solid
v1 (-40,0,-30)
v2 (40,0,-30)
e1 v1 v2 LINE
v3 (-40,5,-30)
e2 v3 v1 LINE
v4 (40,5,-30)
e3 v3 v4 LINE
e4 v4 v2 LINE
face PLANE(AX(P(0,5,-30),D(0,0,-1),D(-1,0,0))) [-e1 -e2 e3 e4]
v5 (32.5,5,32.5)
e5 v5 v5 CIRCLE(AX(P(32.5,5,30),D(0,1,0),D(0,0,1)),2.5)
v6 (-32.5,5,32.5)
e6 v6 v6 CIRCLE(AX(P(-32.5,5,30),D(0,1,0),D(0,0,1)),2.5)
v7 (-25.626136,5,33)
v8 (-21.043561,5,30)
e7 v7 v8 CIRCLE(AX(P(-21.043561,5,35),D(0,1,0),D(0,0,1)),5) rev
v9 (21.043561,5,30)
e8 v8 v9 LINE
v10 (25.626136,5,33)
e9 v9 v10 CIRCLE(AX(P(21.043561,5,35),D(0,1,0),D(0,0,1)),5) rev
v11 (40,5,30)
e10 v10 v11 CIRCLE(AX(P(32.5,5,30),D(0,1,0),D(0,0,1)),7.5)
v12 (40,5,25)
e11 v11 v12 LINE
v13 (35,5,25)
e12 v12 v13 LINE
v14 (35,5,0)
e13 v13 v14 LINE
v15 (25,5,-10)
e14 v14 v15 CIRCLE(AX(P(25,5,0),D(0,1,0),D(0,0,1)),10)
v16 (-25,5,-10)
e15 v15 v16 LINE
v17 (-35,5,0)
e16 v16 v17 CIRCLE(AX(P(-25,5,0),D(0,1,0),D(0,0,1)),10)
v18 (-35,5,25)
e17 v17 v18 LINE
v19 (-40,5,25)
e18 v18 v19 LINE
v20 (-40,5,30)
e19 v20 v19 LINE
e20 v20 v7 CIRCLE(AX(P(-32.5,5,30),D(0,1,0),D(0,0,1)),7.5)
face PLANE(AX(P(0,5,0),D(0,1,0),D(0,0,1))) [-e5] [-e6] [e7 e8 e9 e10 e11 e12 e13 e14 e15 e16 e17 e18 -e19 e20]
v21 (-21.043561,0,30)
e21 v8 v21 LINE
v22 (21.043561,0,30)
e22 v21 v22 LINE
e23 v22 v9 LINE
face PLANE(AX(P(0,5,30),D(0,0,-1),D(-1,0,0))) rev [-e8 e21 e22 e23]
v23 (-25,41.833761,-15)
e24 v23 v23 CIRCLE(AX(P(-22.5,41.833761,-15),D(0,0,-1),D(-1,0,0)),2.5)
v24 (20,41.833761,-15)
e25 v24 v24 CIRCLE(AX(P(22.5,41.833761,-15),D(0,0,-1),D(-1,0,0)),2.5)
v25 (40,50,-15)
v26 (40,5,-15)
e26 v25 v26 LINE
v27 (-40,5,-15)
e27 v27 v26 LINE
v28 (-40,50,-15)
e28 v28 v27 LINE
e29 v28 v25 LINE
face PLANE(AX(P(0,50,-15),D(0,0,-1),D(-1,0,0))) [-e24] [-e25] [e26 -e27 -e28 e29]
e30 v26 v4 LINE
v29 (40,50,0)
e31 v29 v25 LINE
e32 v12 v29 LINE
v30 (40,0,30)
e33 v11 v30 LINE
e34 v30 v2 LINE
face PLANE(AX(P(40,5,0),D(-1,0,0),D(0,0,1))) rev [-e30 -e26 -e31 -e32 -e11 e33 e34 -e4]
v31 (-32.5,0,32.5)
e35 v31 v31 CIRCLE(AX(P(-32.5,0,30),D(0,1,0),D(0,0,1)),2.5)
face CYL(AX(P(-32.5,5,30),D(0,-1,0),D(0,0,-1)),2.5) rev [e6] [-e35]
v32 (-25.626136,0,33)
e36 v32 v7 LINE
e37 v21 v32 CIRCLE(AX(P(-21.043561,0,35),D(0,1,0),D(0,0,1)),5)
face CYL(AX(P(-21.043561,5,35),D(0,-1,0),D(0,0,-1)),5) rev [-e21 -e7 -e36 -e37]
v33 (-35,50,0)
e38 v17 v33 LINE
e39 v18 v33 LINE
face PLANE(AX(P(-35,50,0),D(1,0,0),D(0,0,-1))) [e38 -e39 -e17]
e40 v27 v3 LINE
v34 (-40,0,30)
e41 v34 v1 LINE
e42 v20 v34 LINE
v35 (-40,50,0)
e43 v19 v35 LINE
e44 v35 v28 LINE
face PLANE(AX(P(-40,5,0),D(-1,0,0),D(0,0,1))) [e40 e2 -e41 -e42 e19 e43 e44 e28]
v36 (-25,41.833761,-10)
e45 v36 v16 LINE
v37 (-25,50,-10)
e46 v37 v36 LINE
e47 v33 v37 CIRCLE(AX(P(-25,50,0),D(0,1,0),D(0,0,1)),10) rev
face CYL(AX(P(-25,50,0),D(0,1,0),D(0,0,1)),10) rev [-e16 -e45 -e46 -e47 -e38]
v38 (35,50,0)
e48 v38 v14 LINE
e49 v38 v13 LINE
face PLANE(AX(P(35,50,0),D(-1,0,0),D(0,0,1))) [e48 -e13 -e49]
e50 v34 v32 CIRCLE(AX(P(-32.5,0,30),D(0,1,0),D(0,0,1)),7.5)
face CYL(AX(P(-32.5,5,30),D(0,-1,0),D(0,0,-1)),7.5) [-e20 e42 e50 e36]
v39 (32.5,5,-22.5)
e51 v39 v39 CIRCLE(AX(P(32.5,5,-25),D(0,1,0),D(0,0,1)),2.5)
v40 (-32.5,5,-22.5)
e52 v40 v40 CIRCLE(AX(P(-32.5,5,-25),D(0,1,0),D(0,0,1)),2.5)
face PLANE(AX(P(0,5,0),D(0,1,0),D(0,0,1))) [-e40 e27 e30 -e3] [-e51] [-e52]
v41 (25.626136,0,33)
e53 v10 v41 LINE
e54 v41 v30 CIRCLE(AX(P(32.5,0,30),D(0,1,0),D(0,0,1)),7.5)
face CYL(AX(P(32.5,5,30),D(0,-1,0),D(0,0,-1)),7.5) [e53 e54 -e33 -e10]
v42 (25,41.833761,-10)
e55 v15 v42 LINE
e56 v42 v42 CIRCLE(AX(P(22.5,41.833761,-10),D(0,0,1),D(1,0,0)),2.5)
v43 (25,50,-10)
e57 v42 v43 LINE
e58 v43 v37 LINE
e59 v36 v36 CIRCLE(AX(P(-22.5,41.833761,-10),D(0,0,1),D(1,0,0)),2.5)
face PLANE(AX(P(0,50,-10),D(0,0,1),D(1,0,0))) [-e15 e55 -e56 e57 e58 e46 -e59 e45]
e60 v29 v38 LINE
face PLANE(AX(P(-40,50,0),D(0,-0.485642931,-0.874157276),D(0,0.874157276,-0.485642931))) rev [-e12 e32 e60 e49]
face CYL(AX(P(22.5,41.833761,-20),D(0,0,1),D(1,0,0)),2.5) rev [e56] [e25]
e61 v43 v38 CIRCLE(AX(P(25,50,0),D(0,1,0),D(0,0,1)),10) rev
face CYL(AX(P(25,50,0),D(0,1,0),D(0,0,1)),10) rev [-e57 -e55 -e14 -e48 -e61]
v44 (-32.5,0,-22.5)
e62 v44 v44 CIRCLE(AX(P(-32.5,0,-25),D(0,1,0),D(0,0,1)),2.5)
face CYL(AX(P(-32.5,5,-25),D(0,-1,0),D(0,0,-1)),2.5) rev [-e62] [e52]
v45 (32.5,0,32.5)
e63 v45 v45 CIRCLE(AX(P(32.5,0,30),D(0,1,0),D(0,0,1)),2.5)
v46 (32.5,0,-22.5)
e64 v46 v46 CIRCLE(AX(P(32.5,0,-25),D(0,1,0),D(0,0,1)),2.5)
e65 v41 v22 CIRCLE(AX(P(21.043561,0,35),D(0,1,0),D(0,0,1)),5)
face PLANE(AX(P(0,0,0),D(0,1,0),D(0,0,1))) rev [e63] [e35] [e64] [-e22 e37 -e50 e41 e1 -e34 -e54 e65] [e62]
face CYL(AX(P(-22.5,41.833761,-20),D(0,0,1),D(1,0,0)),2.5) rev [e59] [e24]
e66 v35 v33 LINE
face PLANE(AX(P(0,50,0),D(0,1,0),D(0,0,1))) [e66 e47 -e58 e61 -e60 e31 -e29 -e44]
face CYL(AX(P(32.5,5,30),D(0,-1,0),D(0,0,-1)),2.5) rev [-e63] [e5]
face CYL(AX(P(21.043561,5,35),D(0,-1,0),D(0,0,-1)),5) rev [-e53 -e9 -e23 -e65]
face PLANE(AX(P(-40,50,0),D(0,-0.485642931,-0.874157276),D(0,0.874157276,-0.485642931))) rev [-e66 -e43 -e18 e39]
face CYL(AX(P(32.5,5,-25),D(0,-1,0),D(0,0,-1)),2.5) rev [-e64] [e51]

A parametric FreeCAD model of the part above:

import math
import FreeCAD as App
import Part
import Sketcher
Q = App.Units.Quantity


def edges_at(feature, points):
    """Names of the edges that pass closest to the given points."""
    edges = feature.Shape.Edges
    near = lambda p: min(range(len(edges)), key=lambda i: edges[i].distToShape(Part.Vertex(*p))[0])
    return sorted({f"Edge{near(p) + 1}" for p in points})

doc = App.newDocument("Part")
body = doc.addObject("PartDesign::Body", "Body")

# Sketch on XZ plane
sketch1 = body.newObject("Sketcher::SketchObject", "Sketch")
sketch1.AttachmentSupport = (doc.getObject("XZ_Plane"), [""])
sketch1.MapMode = "FlatFace"
sketch1.addGeometry(Part.ArcOfCircle(Part.Circle(App.Vector(-32.5, 30, 0), App.Vector(0, 0, 1), 7.5), math.radians(0), math.radians(180)), False)
sketch1.addGeometry(Part.LineSegment(App.Vector(-25, 30, 0), App.Vector(25, 30, 0)), False)
sketch1.addGeometry(Part.ArcOfCircle(Part.Circle(App.Vector(32.5, 30, 0), App.Vector(0, 0, 1), 7.5), math.radians(0), math.radians(180)), False)
sketch1.addGeometry(Part.LineSegment(App.Vector(40, 30, 0), App.Vector(40, 25, 0)), False)
sketch1.addGeometry(Part.LineSegment(App.Vector(40, 25, 0), App.Vector(35, 25, 0)), False)
sketch1.addGeometry(Part.LineSegment(App.Vector(35, 25, 0), App.Vector(35, -10, 0)), False)
sketch1.addGeometry(Part.LineSegment(App.Vector(35, -10, 0), App.Vector(-35, -10, 0)), False)
sketch1.addGeometry(Part.LineSegment(App.Vector(-35, -10, 0), App.Vector(-35, 25, 0)), False)
sketch1.addGeometry(Part.LineSegment(App.Vector(-35, 25, 0), App.Vector(-40, 25, 0)), False)
sketch1.addGeometry(Part.LineSegment(App.Vector(-40, 25, 0), App.Vector(-40, 30, 0)), False)
sketch1.addGeometry(Part.Circle(App.Vector(-32.5, 30, 0), App.Vector(0, 0, 1), 2.5), False)
sketch1.addGeometry(Part.Circle(App.Vector(32.5, 30, 0), App.Vector(0, 0, 1), 2.5), False)
sketch1.addConstraint(Sketcher.Constraint("Coincident", 0, 1, 1, 1))
sketch1.addConstraint(Sketcher.Constraint("Coincident", 1, 2, 2, 2))
sketch1.addConstraint(Sketcher.Constraint("Tangent", 2, 1, 3, 1))
sketch1.addConstraint(Sketcher.Constraint("Coincident", 3, 2, 4, 1))
sketch1.addConstraint(Sketcher.Constraint("Coincident", 4, 2, 5, 1))
sketch1.addConstraint(Sketcher.Constraint("Coincident", 5, 2, 6, 1))
sketch1.addConstraint(Sketcher.Constraint("Coincident", 6, 2, 7, 1))
sketch1.addConstraint(Sketcher.Constraint("Coincident", 7, 2, 8, 1))
sketch1.addConstraint(Sketcher.Constraint("Coincident", 8, 2, 9, 1))
sketch1.addConstraint(Sketcher.Constraint("Tangent", 9, 2, 0, 2))
sketch1.addConstraint(Sketcher.Constraint("Horizontal", 1))
sketch1.addConstraint(Sketcher.Constraint("Vertical", 3))
sketch1.addConstraint(Sketcher.Constraint("Horizontal", 4))
sketch1.addConstraint(Sketcher.Constraint("Vertical", 5))
sketch1.addConstraint(Sketcher.Constraint("Horizontal", 6))
sketch1.addConstraint(Sketcher.Constraint("Vertical", 7))
sketch1.addConstraint(Sketcher.Constraint("Horizontal", 8))
sketch1.addConstraint(Sketcher.Constraint("Vertical", 9))
sketch1.addConstraint(Sketcher.Constraint("Coincident", 10, 3, 0, 3))
sketch1.addConstraint(Sketcher.Constraint("Coincident", 11, 3, 2, 3))
sketch1.addConstraint(Sketcher.Constraint("Equal", 0, 2))
sketch1.addConstraint(Sketcher.Constraint("Equal", 10, 11))
sketch1.addConstraint(Sketcher.Constraint("Symmetric", 0, 3, 2, 3, -2))
sketch1.addConstraint(Sketcher.Constraint("Symmetric", 4, 2, 7, 2, -2))
sketch1.addConstraint(Sketcher.Constraint("Horizontal", 11, 3, 0, 1))
sketch1.addConstraint(Sketcher.Constraint("Equal", 8, 3))
sketch1.addConstraint(Sketcher.Constraint("Diameter", 10, Q("5 mm")))
sketch1.addConstraint(Sketcher.Constraint("Radius", 0, Q("7.5 mm")))
sketch1.addConstraint(Sketcher.Constraint("DistanceX", 1, 1, 1, 2, Q("50 mm")))
sketch1.addConstraint(Sketcher.Constraint("DistanceX", 4, 2, 4, 1, Q("5 mm")))
sketch1.addConstraint(Sketcher.Constraint("DistanceY", 5, 2, 5, 1, Q("35 mm")))
sketch1.addConstraint(Sketcher.Constraint("DistanceY", -1, 1, 0, 3, Q("30 mm")))
pad1 = body.newObject("PartDesign::Pad", "Pad")
pad1.Profile = sketch1
pad1.Length = 5
pad1.Reversed = True
body2 = doc.addObject("PartDesign::Body", "Body001")

# Sketch on XZ plane
sketch2 = body2.newObject("Sketcher::SketchObject", "Sketch001")
sketch2.AttachmentSupport = (doc.getObject("XZ_Plane001"), [""])
sketch2.MapMode = "FlatFace"
sketch2.addGeometry(Part.LineSegment(App.Vector(-40, -30, 0), App.Vector(-40, -15, 0)), False)
sketch2.addGeometry(Part.LineSegment(App.Vector(-40, -15, 0), App.Vector(40, -15, 0)), False)
sketch2.addGeometry(Part.LineSegment(App.Vector(40, -15, 0), App.Vector(40, -30, 0)), False)
sketch2.addGeometry(Part.LineSegment(App.Vector(40, -30, 0), App.Vector(-40, -30, 0)), False)
sketch2.addGeometry(Part.Circle(App.Vector(-32.5, -25, 0), App.Vector(0, 0, 1), 2.5), False)
sketch2.addGeometry(Part.Circle(App.Vector(32.5, -25, 0), App.Vector(0, 0, 1), 2.5), False)
sketch2.addConstraint(Sketcher.Constraint("Coincident", 0, 2, 1, 1))
sketch2.addConstraint(Sketcher.Constraint("Coincident", 1, 2, 2, 1))
sketch2.addConstraint(Sketcher.Constraint("Coincident", 2, 2, 3, 1))
sketch2.addConstraint(Sketcher.Constraint("Coincident", 3, 2, 0, 1))
sketch2.addConstraint(Sketcher.Constraint("Vertical", 0))
sketch2.addConstraint(Sketcher.Constraint("Horizontal", 1))
sketch2.addConstraint(Sketcher.Constraint("Vertical", 2))
sketch2.addConstraint(Sketcher.Constraint("Horizontal", 3))
sketch2.addConstraint(Sketcher.Constraint("Equal", 4, 5))
sketch2.addConstraint(Sketcher.Constraint("Symmetric", 4, 3, 5, 3, -2))
sketch2.addConstraint(Sketcher.Constraint("Diameter", 4, Q("5 mm")))
sketch2.addConstraint(Sketcher.Constraint("DistanceX", 1, 1, 1, 2, Q("80 mm")))
sketch2.addConstraint(Sketcher.Constraint("DistanceY", 0, 1, 0, 2, Q("15 mm")))
sketch2.addConstraint(Sketcher.Constraint("DistanceY", 4, 3, -1, 1, Q("25 mm")))
sketch2.addConstraint(Sketcher.Constraint("DistanceX", 0, 2, -1, 1, Q("40 mm")))
sketch2.addConstraint(Sketcher.Constraint("DistanceY", 0, 2, -1, 1, Q("15 mm")))
sketch2.addConstraint(Sketcher.Constraint("DistanceX", 4, 3, 5, 3, Q("65 mm")))
pad2 = body2.newObject("PartDesign::Pad", "Pad001")
pad2.Profile = sketch2
pad2.Length = 5
pad2.Reversed = True
body.AllowCompound = True
doc.recompute()

boolean = body.newObject("PartDesign::Boolean", "Boolean")
boolean.Type = "Fuse"
boolean.addObjects([body2])

# Sketch on XZ plane
sketch3 = body.newObject("Sketcher::SketchObject", "Sketch002")
sketch3.AttachmentSupport = (doc.getObject("XZ_Plane"), [""])
sketch3.MapMode = "FlatFace"
sketch3.addGeometry(Part.LineSegment(App.Vector(-40, -15, 0), App.Vector(-40, 25, 0)), False)
sketch3.addGeometry(Part.LineSegment(App.Vector(-40, 25, 0), App.Vector(-35, 25, 0)), False)
sketch3.addGeometry(Part.LineSegment(App.Vector(-35, 25, 0), App.Vector(-35, -10, 0)), False)
sketch3.addGeometry(Part.LineSegment(App.Vector(-35, -10, 0), App.Vector(35, -10, 0)), False)
sketch3.addGeometry(Part.LineSegment(App.Vector(35, -10, 0), App.Vector(35, 25, 0)), False)
sketch3.addGeometry(Part.LineSegment(App.Vector(35, 25, 0), App.Vector(40, 25, 0)), False)
sketch3.addGeometry(Part.LineSegment(App.Vector(40, 25, 0), App.Vector(40, -15, 0)), False)
sketch3.addGeometry(Part.LineSegment(App.Vector(40, -15, 0), App.Vector(-40, -15, 0)), False)
sketch3.addConstraint(Sketcher.Constraint("Coincident", 0, 2, 1, 1))
sketch3.addConstraint(Sketcher.Constraint("Coincident", 1, 2, 2, 1))
sketch3.addConstraint(Sketcher.Constraint("Coincident", 2, 2, 3, 1))
sketch3.addConstraint(Sketcher.Constraint("Coincident", 3, 2, 4, 1))
sketch3.addConstraint(Sketcher.Constraint("Coincident", 4, 2, 5, 1))
sketch3.addConstraint(Sketcher.Constraint("Coincident", 5, 2, 6, 1))
sketch3.addConstraint(Sketcher.Constraint("Coincident", 6, 2, 7, 1))
sketch3.addConstraint(Sketcher.Constraint("Coincident", 7, 2, 0, 1))
sketch3.addConstraint(Sketcher.Constraint("Vertical", 0))
sketch3.addConstraint(Sketcher.Constraint("Horizontal", 1))
sketch3.addConstraint(Sketcher.Constraint("Vertical", 2))
sketch3.addConstraint(Sketcher.Constraint("Horizontal", 3))
sketch3.addConstraint(Sketcher.Constraint("Vertical", 4))
sketch3.addConstraint(Sketcher.Constraint("Horizontal", 5))
sketch3.addConstraint(Sketcher.Constraint("Vertical", 6))
sketch3.addConstraint(Sketcher.Constraint("Horizontal", 7))
sketch3.addConstraint(Sketcher.Constraint("Symmetric", 1, 2, 4, 2, -2))
sketch3.addConstraint(Sketcher.Constraint("Equal", 1, 5))
sketch3.addConstraint(Sketcher.Constraint("DistanceX", 1, 1, 1, 2, Q("5 mm")))
sketch3.addConstraint(Sketcher.Constraint("DistanceX", 3, 1, 3, 2, Q("70 mm")))
sketch3.addConstraint(Sketcher.Constraint("DistanceY", 0, 1, 0, 2, Q("40 mm")))
sketch3.addConstraint(Sketcher.Constraint("DistanceY", 2, 2, 2, 1, Q("35 mm")))
sketch3.addConstraint(Sketcher.Constraint("DistanceY", -1, 1, 0, 2, Q("25 mm")))
pad3 = body.newObject("PartDesign::Pad", "Pad002")
pad3.Profile = sketch3
pad3.Length = 50
pad3.Reversed = True

# Sketch on YZ plane
sketch4 = body.newObject("Sketcher::SketchObject", "Sketch003")
sketch4.AttachmentSupport = (doc.getObject("YZ_Plane"), [""])
sketch4.MapMode = "FlatFace"
sketch4.addGeometry(Part.LineSegment(App.Vector(5, 25, 0), App.Vector(50, 0, 0)), False)
sketch4.addGeometry(Part.LineSegment(App.Vector(50, 0, 0), App.Vector(50, 25, 0)), False)
sketch4.addGeometry(Part.LineSegment(App.Vector(50, 25, 0), App.Vector(5, 25, 0)), False)
sketch4.addConstraint(Sketcher.Constraint("Coincident", 0, 2, 1, 1))
sketch4.addConstraint(Sketcher.Constraint("Coincident", 1, 2, 2, 1))
sketch4.addConstraint(Sketcher.Constraint("Coincident", 2, 2, 0, 1))
sketch4.addConstraint(Sketcher.Constraint("Vertical", 1))
sketch4.addConstraint(Sketcher.Constraint("Horizontal", 2))
sketch4.addConstraint(Sketcher.Constraint("PointOnObject", 0, 2, -1))
sketch4.addConstraint(Sketcher.Constraint("DistanceX", 2, 2, 2, 1, Q("45 mm")))
sketch4.addConstraint(Sketcher.Constraint("DistanceY", 1, 1, 1, 2, Q("25 mm")))
sketch4.addConstraint(Sketcher.Constraint("DistanceX", -1, 1, 0, 2, Q("50 mm")))
pocket1 = body.newObject("PartDesign::Pocket", "Pocket")
pocket1.Profile = sketch4
pocket1.Length = 80
pocket1.Midplane = True
doc.recompute()

fillet = body.newObject("PartDesign::Fillet", "Fillet")
fillet.Base = (pocket1, edges_at(pocket1, [(-35, 27.5, -10), (35, 27.5, -10)]))
fillet.Radius = 10

# Sketch on XY plane
sketch5 = body.newObject("Sketcher::SketchObject", "Sketch004")
sketch5.AttachmentSupport = (doc.getObject("XY_Plane"), [""])
sketch5.MapMode = "FlatFace"
sketch5.addGeometry(Part.Circle(App.Vector(-22.5, 41.833761, 0), App.Vector(0, 0, 1), 2.5), False)
sketch5.addGeometry(Part.Circle(App.Vector(22.5, 41.833761, 0), App.Vector(0, 0, 1), 2.5), False)
sketch5.addConstraint(Sketcher.Constraint("Equal", 0, 1))
sketch5.addConstraint(Sketcher.Constraint("Symmetric", 0, 3, 1, 3, -2))
sketch5.addConstraint(Sketcher.Constraint("Diameter", 0, Q("5 mm")))
sketch5.addConstraint(Sketcher.Constraint("DistanceX", 0, 3, 1, 3, Q("45 mm")))
sketch5.addConstraint(Sketcher.Constraint("DistanceY", -1, 1, 0, 3, Q("41.833761 mm")))
pocket2 = body.newObject("PartDesign::Pocket", "Pocket001")
pocket2.Profile = sketch5
pocket2.Length = 20
doc.recompute()

fillet2 = body.newObject("PartDesign::Fillet", "Fillet001")
fillet2.Base = (pocket2, edges_at(pocket2, [(-25, 2.5, 30), (25, 2.5, 30)]))
fillet2.Radius = 5

doc.recompute()
